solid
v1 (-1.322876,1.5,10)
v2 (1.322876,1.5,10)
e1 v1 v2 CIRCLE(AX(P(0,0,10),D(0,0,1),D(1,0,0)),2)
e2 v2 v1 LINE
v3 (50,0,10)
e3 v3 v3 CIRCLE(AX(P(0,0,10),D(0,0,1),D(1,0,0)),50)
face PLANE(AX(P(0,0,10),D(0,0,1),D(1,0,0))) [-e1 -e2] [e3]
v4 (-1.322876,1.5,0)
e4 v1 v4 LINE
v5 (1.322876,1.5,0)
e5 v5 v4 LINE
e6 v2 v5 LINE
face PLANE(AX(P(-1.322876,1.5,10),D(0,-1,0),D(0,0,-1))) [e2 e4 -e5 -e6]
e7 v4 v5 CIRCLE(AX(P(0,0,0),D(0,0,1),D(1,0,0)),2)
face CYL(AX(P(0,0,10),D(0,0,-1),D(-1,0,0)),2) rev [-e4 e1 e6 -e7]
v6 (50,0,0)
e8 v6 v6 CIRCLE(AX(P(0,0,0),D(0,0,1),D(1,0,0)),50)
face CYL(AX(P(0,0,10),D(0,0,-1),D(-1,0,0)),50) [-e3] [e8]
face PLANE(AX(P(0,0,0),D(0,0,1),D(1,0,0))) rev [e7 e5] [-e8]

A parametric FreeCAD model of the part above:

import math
import FreeCAD as App
import Part
import Sketcher
from FreeCAD import Vector

doc = App.newDocument("Part")
params = doc.addObject("Spreadsheet::Sheet", "Params")
for row, (alias, value) in enumerate([
    ("sketch1_diameter", "100 mm"),
    ("sketch1_radius", "2 mm"),
    ("pad1_length", "10 mm"),
], start=1):
    params.set(f"A{row}", alias)
    params.set(f"B{row}", "=" + value)
    params.setAlias(f"B{row}", alias)

body = doc.addObject("PartDesign::Body", "Body")

# Sketch on XY plane
sketch1 = body.newObject("Sketcher::SketchObject", "Sketch")
sketch1.AttachmentSupport = (doc.getObject("XY_Plane"), [""])
sketch1.MapMode = "FlatFace"
sketch1.addGeometry([
    Part.Circle(Vector(0, 0, 0), Vector(0, 0, 1), 50),
    Part.ArcOfCircle(Part.Circle(Vector(0, 0, 0), Vector(0, 0, 1), 2), math.radians(131), math.radians(409)),
    Part.LineSegment(Vector(-1.3, 1.5, 0), Vector(1.3, 1.5, 0)),
], False)
sketch1.addConstraint([
    Sketcher.Constraint("Coincident", 1, 1, 2, 1),
    Sketcher.Constraint("Coincident", 2, 2, 1, 2),
    Sketcher.Constraint("Horizontal", 2),
    Sketcher.Constraint("Coincident", 0, 3, -1, 1),
    Sketcher.Constraint("Coincident", 1, 3, -1, 1),
    Sketcher.Constraint("Diameter", 0, 100.0),
    Sketcher.Constraint("Radius", 1, 2.0),
    Sketcher.Constraint("DistanceY", -1, 1, 1, 1, 1.5),
])
sketch1.setExpression("Constraints[5]", "Params.sketch1_diameter")
sketch1.setExpression("Constraints[6]", "Params.sketch1_radius")
pad1 = body.newObject("PartDesign::Pad", "Pad")
pad1.Profile = sketch1
pad1.setExpression("Length", "Params.pad1_length")

doc.recompute()
